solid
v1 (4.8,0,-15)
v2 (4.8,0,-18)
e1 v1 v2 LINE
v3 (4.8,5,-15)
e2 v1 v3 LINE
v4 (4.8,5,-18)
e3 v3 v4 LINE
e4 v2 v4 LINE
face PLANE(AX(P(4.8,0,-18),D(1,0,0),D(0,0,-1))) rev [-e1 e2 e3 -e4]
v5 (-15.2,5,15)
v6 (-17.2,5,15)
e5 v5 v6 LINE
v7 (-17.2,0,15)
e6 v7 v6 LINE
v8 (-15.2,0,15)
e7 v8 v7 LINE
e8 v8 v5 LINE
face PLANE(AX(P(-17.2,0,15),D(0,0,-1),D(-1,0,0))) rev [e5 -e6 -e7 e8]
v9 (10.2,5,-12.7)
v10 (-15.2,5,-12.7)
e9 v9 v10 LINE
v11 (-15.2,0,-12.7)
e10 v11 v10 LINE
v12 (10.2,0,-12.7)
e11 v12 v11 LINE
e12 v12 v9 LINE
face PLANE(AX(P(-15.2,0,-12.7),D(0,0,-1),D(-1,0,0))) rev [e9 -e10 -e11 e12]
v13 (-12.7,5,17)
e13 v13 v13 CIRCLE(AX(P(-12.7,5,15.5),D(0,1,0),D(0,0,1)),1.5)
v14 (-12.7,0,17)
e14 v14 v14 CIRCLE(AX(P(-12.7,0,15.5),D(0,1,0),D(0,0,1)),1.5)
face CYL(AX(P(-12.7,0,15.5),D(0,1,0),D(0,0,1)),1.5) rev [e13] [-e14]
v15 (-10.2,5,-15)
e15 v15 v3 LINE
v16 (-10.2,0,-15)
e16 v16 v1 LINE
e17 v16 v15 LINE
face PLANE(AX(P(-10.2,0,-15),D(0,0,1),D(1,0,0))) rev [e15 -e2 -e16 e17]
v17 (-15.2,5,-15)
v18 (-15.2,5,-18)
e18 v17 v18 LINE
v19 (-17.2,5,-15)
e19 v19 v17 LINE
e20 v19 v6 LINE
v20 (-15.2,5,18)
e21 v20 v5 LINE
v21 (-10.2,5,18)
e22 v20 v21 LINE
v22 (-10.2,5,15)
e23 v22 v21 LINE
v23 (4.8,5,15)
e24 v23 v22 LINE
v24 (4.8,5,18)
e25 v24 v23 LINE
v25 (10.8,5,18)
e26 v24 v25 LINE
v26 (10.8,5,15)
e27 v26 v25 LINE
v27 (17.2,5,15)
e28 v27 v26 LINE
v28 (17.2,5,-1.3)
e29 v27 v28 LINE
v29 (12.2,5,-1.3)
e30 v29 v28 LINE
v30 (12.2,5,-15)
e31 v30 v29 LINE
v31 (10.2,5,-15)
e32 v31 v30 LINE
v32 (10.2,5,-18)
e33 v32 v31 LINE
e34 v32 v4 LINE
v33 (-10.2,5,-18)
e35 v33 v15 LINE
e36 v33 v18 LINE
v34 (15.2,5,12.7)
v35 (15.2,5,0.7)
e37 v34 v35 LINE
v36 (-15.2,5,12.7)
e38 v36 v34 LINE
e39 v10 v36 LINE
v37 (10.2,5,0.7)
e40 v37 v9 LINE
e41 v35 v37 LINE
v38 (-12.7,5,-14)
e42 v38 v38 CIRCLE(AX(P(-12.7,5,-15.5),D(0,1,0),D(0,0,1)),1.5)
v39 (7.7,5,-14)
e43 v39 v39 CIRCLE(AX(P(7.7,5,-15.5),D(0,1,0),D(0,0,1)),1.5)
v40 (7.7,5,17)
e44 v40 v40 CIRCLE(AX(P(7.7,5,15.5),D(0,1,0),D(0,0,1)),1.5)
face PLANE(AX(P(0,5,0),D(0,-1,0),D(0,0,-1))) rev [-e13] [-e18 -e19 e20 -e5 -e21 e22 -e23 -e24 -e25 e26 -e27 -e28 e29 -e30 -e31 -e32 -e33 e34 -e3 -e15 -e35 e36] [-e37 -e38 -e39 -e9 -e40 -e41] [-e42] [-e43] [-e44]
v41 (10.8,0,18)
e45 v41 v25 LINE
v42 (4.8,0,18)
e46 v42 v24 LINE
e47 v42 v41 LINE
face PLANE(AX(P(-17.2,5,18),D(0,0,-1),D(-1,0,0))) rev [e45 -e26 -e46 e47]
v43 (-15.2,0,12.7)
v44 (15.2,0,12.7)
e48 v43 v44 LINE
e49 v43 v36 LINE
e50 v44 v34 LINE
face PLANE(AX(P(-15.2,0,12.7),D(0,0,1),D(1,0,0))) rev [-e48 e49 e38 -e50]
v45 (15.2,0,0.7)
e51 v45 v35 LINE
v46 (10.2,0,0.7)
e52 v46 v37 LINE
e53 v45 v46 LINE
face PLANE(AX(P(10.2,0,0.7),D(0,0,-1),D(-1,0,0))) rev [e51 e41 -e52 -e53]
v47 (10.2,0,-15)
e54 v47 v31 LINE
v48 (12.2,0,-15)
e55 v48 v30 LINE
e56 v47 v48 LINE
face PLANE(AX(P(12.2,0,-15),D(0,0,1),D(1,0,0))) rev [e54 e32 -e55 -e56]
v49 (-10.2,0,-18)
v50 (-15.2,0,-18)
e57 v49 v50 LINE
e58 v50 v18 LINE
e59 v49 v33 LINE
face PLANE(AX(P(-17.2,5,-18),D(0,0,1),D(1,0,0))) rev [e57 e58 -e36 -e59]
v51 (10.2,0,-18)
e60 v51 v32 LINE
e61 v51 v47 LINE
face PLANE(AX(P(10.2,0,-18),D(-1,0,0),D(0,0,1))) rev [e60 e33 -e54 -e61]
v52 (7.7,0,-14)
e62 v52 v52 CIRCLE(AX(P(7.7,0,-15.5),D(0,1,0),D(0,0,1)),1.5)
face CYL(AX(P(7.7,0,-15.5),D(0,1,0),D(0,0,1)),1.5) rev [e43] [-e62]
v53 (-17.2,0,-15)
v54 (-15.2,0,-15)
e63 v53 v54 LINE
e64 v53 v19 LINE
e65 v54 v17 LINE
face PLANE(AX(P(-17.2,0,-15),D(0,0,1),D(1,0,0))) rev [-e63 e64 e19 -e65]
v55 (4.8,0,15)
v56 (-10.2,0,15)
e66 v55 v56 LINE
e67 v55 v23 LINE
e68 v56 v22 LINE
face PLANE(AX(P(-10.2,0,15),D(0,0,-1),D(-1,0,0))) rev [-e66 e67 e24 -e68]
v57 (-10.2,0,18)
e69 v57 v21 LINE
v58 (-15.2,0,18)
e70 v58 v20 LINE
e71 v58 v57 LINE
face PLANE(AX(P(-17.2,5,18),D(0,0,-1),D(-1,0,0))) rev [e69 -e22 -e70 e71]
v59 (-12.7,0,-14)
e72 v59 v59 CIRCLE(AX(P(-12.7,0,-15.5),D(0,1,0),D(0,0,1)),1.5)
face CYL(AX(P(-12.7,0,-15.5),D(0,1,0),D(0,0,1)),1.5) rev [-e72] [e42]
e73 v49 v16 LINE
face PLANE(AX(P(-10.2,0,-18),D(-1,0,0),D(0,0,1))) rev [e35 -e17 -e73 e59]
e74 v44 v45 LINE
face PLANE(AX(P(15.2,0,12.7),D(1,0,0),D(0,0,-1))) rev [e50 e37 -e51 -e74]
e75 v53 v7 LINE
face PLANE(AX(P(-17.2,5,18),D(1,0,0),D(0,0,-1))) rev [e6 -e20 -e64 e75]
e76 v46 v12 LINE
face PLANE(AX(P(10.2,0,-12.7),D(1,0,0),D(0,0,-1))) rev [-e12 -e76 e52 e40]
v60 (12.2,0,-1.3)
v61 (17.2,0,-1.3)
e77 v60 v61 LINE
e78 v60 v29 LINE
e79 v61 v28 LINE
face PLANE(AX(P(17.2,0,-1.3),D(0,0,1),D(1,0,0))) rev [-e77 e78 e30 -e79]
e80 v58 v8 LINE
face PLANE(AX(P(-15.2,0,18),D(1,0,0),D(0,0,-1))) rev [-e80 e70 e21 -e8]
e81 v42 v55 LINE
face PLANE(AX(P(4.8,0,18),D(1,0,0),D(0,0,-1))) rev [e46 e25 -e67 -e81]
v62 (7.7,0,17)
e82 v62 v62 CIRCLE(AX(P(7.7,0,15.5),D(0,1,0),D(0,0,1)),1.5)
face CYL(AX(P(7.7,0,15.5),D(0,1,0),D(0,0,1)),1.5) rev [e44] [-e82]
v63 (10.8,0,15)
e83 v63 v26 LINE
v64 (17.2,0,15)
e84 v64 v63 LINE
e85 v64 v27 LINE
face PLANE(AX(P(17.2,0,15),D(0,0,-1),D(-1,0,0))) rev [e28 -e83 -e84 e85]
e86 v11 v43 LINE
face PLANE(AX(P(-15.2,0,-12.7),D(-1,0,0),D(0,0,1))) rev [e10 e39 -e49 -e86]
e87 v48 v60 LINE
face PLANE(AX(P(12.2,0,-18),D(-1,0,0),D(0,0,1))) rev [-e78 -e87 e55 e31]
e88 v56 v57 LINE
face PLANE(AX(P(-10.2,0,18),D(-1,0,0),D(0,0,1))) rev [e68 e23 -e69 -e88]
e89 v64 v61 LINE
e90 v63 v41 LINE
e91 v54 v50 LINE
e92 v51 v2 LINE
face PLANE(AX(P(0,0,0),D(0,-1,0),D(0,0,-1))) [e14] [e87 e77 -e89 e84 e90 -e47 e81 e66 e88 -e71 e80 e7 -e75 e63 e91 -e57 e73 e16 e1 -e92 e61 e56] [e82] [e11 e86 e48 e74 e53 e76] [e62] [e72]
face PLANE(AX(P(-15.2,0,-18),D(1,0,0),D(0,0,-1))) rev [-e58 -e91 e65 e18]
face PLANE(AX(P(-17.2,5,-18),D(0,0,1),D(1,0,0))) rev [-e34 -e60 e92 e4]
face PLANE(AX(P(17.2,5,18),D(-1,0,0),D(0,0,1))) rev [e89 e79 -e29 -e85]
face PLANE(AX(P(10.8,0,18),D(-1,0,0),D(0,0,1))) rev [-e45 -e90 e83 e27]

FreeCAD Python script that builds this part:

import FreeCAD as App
import Part
import Sketcher
from FreeCAD import Vector

doc = App.newDocument("Part")
params = doc.addObject("Spreadsheet::Sheet", "Params")
for row, (alias, value) in enumerate([
    ("sketch1_height", "36 mm"),
    ("sketch1_width", "34.4 mm"),
    ("pad1_length", "5 mm"),
    ("sketch2_diameter", "3 mm"),
    ("pocket1_length", "5 mm"),
    ("sketch3_diameter", "3 mm"),
    ("sketch3_width", "25.4 mm"),
    ("sketch4_width", "5 mm"),
    ("sketch4_height", "12 mm"),
    ("pocket3_length", "5 mm"),
    ("sketch5_width", "15 mm"),
    ("sketch5_height", "3 mm"),
    ("sketch6_height", "3 mm"),
    ("sketch6_width", "6.4 mm"),
    ("sketch7_width", "2 mm"),
    ("sketch7_height", "3 mm"),
    ("sketch8_width", "2 mm"),
    ("sketch8_width2", "15 mm"),
    ("sketch8_height", "3 mm"),
    ("sketch9_width", "5 mm"),
    ("sketch9_height", "16.7 mm"),
    ("sketch10_width", "2 mm"),
    ("sketch10_height", "3 mm"),
], start=1):
    params.set(f"A{row}", alias)
    params.set(f"B{row}", "=" + value)
    params.setAlias(f"B{row}", alias)

body = doc.addObject("PartDesign::Body", "Body")

sketch1 = body.newObject("Sketcher::SketchObject", "Sketch")
sketch1.AttachmentSupport = (doc.getObject("XZ_Plane"), [""])
sketch1.MapMode = "FlatFace"
sketch1.addGeometry([
    Part.LineSegment(Vector(-17.2, -18, 0), Vector(-17.2, 18, 0)),
    Part.LineSegment(Vector(-17.2, 18, 0), Vector(17.2, 18, 0)),
    Part.LineSegment(Vector(17.2, 18, 0), Vector(17.2, -18, 0)),
    Part.LineSegment(Vector(17.2, -18, 0), Vector(-17.2, -18, 0)),
], False)
sketch1.addConstraint([
    Sketcher.Constraint("Coincident", 0, 2, 1, 1),
    Sketcher.Constraint("Coincident", 1, 2, 2, 1),
    Sketcher.Constraint("Coincident", 2, 2, 3, 1),
    Sketcher.Constraint("Coincident", 3, 2, 0, 1),
    Sketcher.Constraint("Vertical", 0),
    Sketcher.Constraint("Horizontal", 1),
    Sketcher.Constraint("Vertical", 2),
    Sketcher.Constraint("Horizontal", 3),
    Sketcher.Constraint("Symmetric", 0, 2, 2, 2, -1, 1),
    Sketcher.Constraint("DistanceY", 0, 1, 0, 2, 36.0),
    Sketcher.Constraint("DistanceX", 1, 1, 1, 2, 34.4),
])
sketch1.setExpression("Constraints[9]", "Params.sketch1_height")
sketch1.setExpression("Constraints[10]", "Params.sketch1_width")
pad1 = body.newObject("PartDesign::Pad", "Pad")
pad1.Profile = sketch1
pad1.setExpression("Length", "Params.pad1_length")
pad1.Reversed = True

sketch2 = body.newObject("Sketcher::SketchObject", "Sketch001")
sketch2.AttachmentSupport = (doc.getObject("XZ_Plane"), [""])
sketch2.MapMode = "FlatFace"
sketch2.AttachmentOffset = App.Placement(Vector(0, 0, -5), App.Rotation())
sketch2.addGeometry(Part.Circle(Vector(-12.7, -15.5, 0), Vector(0, 0, 1), 1.5), False)
sketch2.addConstraint([
    Sketcher.Constraint("Diameter", 0, 3.0),
    Sketcher.Constraint("DistanceX", 0, 3, -1, 1, 12.7),
    Sketcher.Constraint("DistanceY", 0, 3, -1, 1, 15.5),
])
sketch2.setExpression("Constraints[0]", "Params.sketch2_diameter")
pocket1 = body.newObject("PartDesign::Pocket", "Pocket")
pocket1.Profile = sketch2
pocket1.setExpression("Length", "Params.pocket1_length")
pocket1.Reversed = True

sketch3 = body.newObject("Sketcher::SketchObject", "Sketch002")
sketch3.AttachmentSupport = (doc.getObject("XZ_Plane"), [""])
sketch3.MapMode = "FlatFace"
sketch3.AttachmentOffset = App.Placement(Vector(0, 0, -5), App.Rotation())
sketch3.addGeometry([
    Part.Circle(Vector(-12.7, -15.5, 0), Vector(0, 0, 1), 1.5),
    Part.Circle(Vector(7.7, -15.5, 0), Vector(0, 0, 1), 1.5),
    Part.Circle(Vector(7.7, 15.5, 0), Vector(0, 0, 1), 1.5),
    Part.Circle(Vector(-12.7, 15.5, 0), Vector(0, 0, 1), 1.5),
    Part.LineSegment(Vector(-15.2, -12.7, 0), Vector(-15.2, 12.7, 0)),
    Part.LineSegment(Vector(-15.2, 12.7, 0), Vector(10.2, 12.7, 0)),
    Part.LineSegment(Vector(10.2, 12.7, 0), Vector(10.2, -12.7, 0)),
    Part.LineSegment(Vector(10.2, -12.7, 0), Vector(-15.2, -12.7, 0)),
], False)
sketch3.addConstraint([
    Sketcher.Constraint("Coincident", 4, 2, 5, 1),
    Sketcher.Constraint("Coincident", 5, 2, 6, 1),
    Sketcher.Constraint("Coincident", 6, 2, 7, 1),
    Sketcher.Constraint("Coincident", 7, 2, 4, 1),
    Sketcher.Constraint("Vertical", 4),
    Sketcher.Constraint("Horizontal", 5),
    Sketcher.Constraint("Vertical", 6),
    Sketcher.Constraint("Horizontal", 7),
    Sketcher.Constraint("Equal", 0, 1),
    Sketcher.Constraint("Equal", 1, 2),
    Sketcher.Constraint("Equal", 2, 3),
    Sketcher.Constraint("Symmetric", 1, 3, 2, 3, -1),
    Sketcher.Constraint("Symmetric", 0, 3, 3, 3, -1),
    Sketcher.Constraint("Horizontal", 0, 3, 1, 3),
    Sketcher.Constraint("Equal", 7, 4),
    Sketcher.Constraint("Diameter", 0, 3.0),
    Sketcher.Constraint("DistanceX", 5, 1, 5, 2, 25.4),
    Sketcher.Constraint("DistanceY", 1, 3, 2, 3, 31.0),
    Sketcher.Constraint("DistanceX", 0, 3, -1, 1, 12.7),
    Sketcher.Constraint("DistanceX", -1, 1, 1, 3, 7.7),
    Sketcher.Constraint("DistanceX", 4, 2, -1, 1, 15.2),
    Sketcher.Constraint("DistanceY", -1, 1, 4, 2, 12.7),
])
sketch3.setExpression("Constraints[15]", "Params.sketch3_diameter")
sketch3.setExpression("Constraints[16]", "Params.sketch3_width")
pocket2 = body.newObject("PartDesign::Pocket", "Pocket001")
pocket2.Profile = sketch3
pocket2.Type = "ThroughAll"
pocket2.Reversed = True

sketch4 = body.newObject("Sketcher::SketchObject", "Sketch003")
sketch4.AttachmentSupport = (doc.getObject("XZ_Plane"), [""])
sketch4.MapMode = "FlatFace"
sketch4.AttachmentOffset = App.Placement(Vector(0, 0, -5), App.Rotation())
sketch4.addGeometry([
    Part.LineSegment(Vector(10.2, 0.7, 0), Vector(10.2, 12.7, 0)),
    Part.LineSegment(Vector(10.2, 12.7, 0), Vector(15.2, 12.7, 0)),
    Part.LineSegment(Vector(15.2, 12.7, 0), Vector(15.2, 0.7, 0)),
    Part.LineSegment(Vector(15.2, 0.7, 0), Vector(10.2, 0.7, 0)),
], False)
sketch4.addConstraint([
    Sketcher.Constraint("Coincident", 0, 2, 1, 1),
    Sketcher.Constraint("Coincident", 1, 2, 2, 1),
    Sketcher.Constraint("Coincident", 2, 2, 3, 1),
    Sketcher.Constraint("Coincident", 3, 2, 0, 1),
    Sketcher.Constraint("Vertical", 0),
    Sketcher.Constraint("Horizontal", 1),
    Sketcher.Constraint("Vertical", 2),
    Sketcher.Constraint("Horizontal", 3),
    Sketcher.Constraint("DistanceX", 1, 1, 1, 2, 5.0),
    Sketcher.Constraint("DistanceY", 0, 1, 0, 2, 12.0),
    Sketcher.Constraint("DistanceX", -1, 1, 0, 2, 10.2),
    Sketcher.Constraint("DistanceY", -1, 1, 0, 2, 12.7),
])
sketch4.setExpression("Constraints[8]", "Params.sketch4_width")
sketch4.setExpression("Constraints[9]", "Params.sketch4_height")
pocket3 = body.newObject("PartDesign::Pocket", "Pocket002")
pocket3.Profile = sketch4
pocket3.setExpression("Length", "Params.pocket3_length")
pocket3.Reversed = True

sketch5 = body.newObject("Sketcher::SketchObject", "Sketch004")
sketch5.AttachmentSupport = (doc.getObject("XZ_Plane"), [""])
sketch5.MapMode = "FlatFace"
sketch5.AttachmentOffset = App.Placement(Vector(0, 0, -5), App.Rotation())
sketch5.addGeometry([
    Part.LineSegment(Vector(-10.2, 15, 0), Vector(-10.2, 18, 0)),
    Part.LineSegment(Vector(-10.2, 18, 0), Vector(4.8, 18, 0)),
    Part.LineSegment(Vector(4.8, 18, 0), Vector(4.8, 15, 0)),
    Part.LineSegment(Vector(4.8, 15, 0), Vector(-10.2, 15, 0)),
], False)
sketch5.addConstraint([
    Sketcher.Constraint("Coincident", 0, 2, 1, 1),
    Sketcher.Constraint("Coincident", 1, 2, 2, 1),
    Sketcher.Constraint("Coincident", 2, 2, 3, 1),
    Sketcher.Constraint("Coincident", 3, 2, 0, 1),
    Sketcher.Constraint("Vertical", 0),
    Sketcher.Constraint("Horizontal", 1),
    Sketcher.Constraint("Vertical", 2),
    Sketcher.Constraint("Horizontal", 3),
    Sketcher.Constraint("DistanceX", 1, 1, 1, 2, 15.0),
    Sketcher.Constraint("DistanceY", 0, 1, 0, 2, 3.0),
    Sketcher.Constraint("DistanceY", -1, 1, 0, 2, 18.0),
    Sketcher.Constraint("DistanceX", 0, 2, -1, 1, 10.2),
])
sketch5.setExpression("Constraints[8]", "Params.sketch5_width")
sketch5.setExpression("Constraints[9]", "Params.sketch5_height")
pocket4 = body.newObject("PartDesign::Pocket", "Pocket003")
pocket4.Profile = sketch5
pocket4.Type = "ThroughAll"
pocket4.Reversed = True

sketch6 = body.newObject("Sketcher::SketchObject", "Sketch005")
sketch6.AttachmentSupport = (doc.getObject("XZ_Plane"), [""])
sketch6.MapMode = "FlatFace"
sketch6.AttachmentOffset = App.Placement(Vector(0, 0, -5), App.Rotation())
sketch6.addGeometry([
    Part.LineSegment(Vector(10.8, 15, 0), Vector(10.8, 18, 0)),
    Part.LineSegment(Vector(10.8, 18, 0), Vector(17.2, 18, 0)),
    Part.LineSegment(Vector(17.2, 18, 0), Vector(17.2, 15, 0)),
    Part.LineSegment(Vector(17.2, 15, 0), Vector(10.8, 15, 0)),
], False)
sketch6.addConstraint([
    Sketcher.Constraint("Coincident", 0, 2, 1, 1),
    Sketcher.Constraint("Coincident", 1, 2, 2, 1),
    Sketcher.Constraint("Coincident", 2, 2, 3, 1),
    Sketcher.Constraint("Coincident", 3, 2, 0, 1),
    Sketcher.Constraint("Vertical", 0),
    Sketcher.Constraint("Horizontal", 1),
    Sketcher.Constraint("Vertical", 2),
    Sketcher.Constraint("Horizontal", 3),
    Sketcher.Constraint("DistanceY", 0, 1, 0, 2, 3.0),
    Sketcher.Constraint("DistanceX", 1, 1, 1, 2, 6.4),
    Sketcher.Constraint("DistanceY", -1, 1, 0, 2, 18.0),
    Sketcher.Constraint("DistanceX", -1, 1, 0, 2, 10.8),
])
sketch6.setExpression("Constraints[8]", "Params.sketch6_height")
sketch6.setExpression("Constraints[9]", "Params.sketch6_width")
pocket5 = body.newObject("PartDesign::Pocket", "Pocket004")
pocket5.Profile = sketch6
pocket5.Type = "ThroughAll"
pocket5.Reversed = True

sketch7 = body.newObject("Sketcher::SketchObject", "Sketch006")
sketch7.AttachmentSupport = (doc.getObject("XZ_Plane"), [""])
sketch7.MapMode = "FlatFace"
sketch7.AttachmentOffset = App.Placement(Vector(0, 0, -5), App.Rotation())
sketch7.addGeometry([
    Part.LineSegment(Vector(-17.2, 15, 0), Vector(-17.2, 18, 0)),
    Part.LineSegment(Vector(-17.2, 18, 0), Vector(-15.2, 18, 0)),
    Part.LineSegment(Vector(-15.2, 18, 0), Vector(-15.2, 15, 0)),
    Part.LineSegment(Vector(-15.2, 15, 0), Vector(-17.2, 15, 0)),
], False)
sketch7.addConstraint([
    Sketcher.Constraint("Coincident", 0, 2, 1, 1),
    Sketcher.Constraint("Coincident", 1, 2, 2, 1),
    Sketcher.Constraint("Coincident", 2, 2, 3, 1),
    Sketcher.Constraint("Coincident", 3, 2, 0, 1),
    Sketcher.Constraint("Vertical", 0),
    Sketcher.Constraint("Horizontal", 1),
    Sketcher.Constraint("Vertical", 2),
    Sketcher.Constraint("Horizontal", 3),
    Sketcher.Constraint("DistanceX", 1, 1, 1, 2, 2.0),
    Sketcher.Constraint("DistanceY", 0, 1, 0, 2, 3.0),
    Sketcher.Constraint("DistanceY", -1, 1, 0, 2, 18.0),
    Sketcher.Constraint("DistanceX", 0, 2, -1, 1, 17.2),
])
sketch7.setExpression("Constraints[8]", "Params.sketch7_width")
sketch7.setExpression("Constraints[9]", "Params.sketch7_height")
pocket6 = body.newObject("PartDesign::Pocket", "Pocket005")
pocket6.Profile = sketch7
pocket6.Type = "ThroughAll"
pocket6.Reversed = True

sketch8 = body.newObject("Sketcher::SketchObject", "Sketch007")
sketch8.AttachmentSupport = (doc.getObject("XZ_Plane"), [""])
sketch8.MapMode = "FlatFace"
sketch8.AttachmentOffset = App.Placement(Vector(0, 0, -5), App.Rotation())
sketch8.addGeometry([
    Part.LineSegment(Vector(-17.2, -18, 0), Vector(-17.2, -15, 0)),
    Part.LineSegment(Vector(-17.2, -15, 0), Vector(-15.2, -15, 0)),
    Part.LineSegment(Vector(-15.2, -15, 0), Vector(-15.2, -18, 0)),
    Part.LineSegment(Vector(-15.2, -18, 0), Vector(-17.2, -18, 0)),
    Part.LineSegment(Vector(-10.2, -18, 0), Vector(-10.2, -15, 0)),
    Part.LineSegment(Vector(-10.2, -15, 0), Vector(4.8, -15, 0)),
    Part.LineSegment(Vector(4.8, -15, 0), Vector(4.8, -18, 0)),
    Part.LineSegment(Vector(4.8, -18, 0), Vector(-10.2, -18, 0)),
], False)
sketch8.addConstraint([
    Sketcher.Constraint("Coincident", 0, 2, 1, 1),
    Sketcher.Constraint("Coincident", 1, 2, 2, 1),
    Sketcher.Constraint("Coincident", 2, 2, 3, 1),
    Sketcher.Constraint("Coincident", 3, 2, 0, 1),
    Sketcher.Constraint("Coincident", 4, 2, 5, 1),
    Sketcher.Constraint("Coincident", 5, 2, 6, 1),
    Sketcher.Constraint("Coincident", 6, 2, 7, 1),
    Sketcher.Constraint("Coincident", 7, 2, 4, 1),
    Sketcher.Constraint("Vertical", 0),
    Sketcher.Constraint("Horizontal", 1),
    Sketcher.Constraint("Vertical", 2),
    Sketcher.Constraint("Horizontal", 3),
    Sketcher.Constraint("Vertical", 4),
    Sketcher.Constraint("Horizontal", 5),
    Sketcher.Constraint("Vertical", 6),
    Sketcher.Constraint("Horizontal", 7),
    Sketcher.Constraint("Horizontal", 1, 2, 4, 2),
    Sketcher.Constraint("Horizontal", 3, 2, 6, 2),
    Sketcher.Constraint("DistanceX", 1, 1, 1, 2, 2.0),
    Sketcher.Constraint("DistanceX", 5, 1, 5, 2, 15.0),
    Sketcher.Constraint("DistanceY", 0, 1, 0, 2, 3.0),
    Sketcher.Constraint("DistanceY", 0, 2, -1, 1, 15.0),
    Sketcher.Constraint("DistanceX", 1, 2, 4, 2, 5.0),
    Sketcher.Constraint("DistanceX", 0, 2, -1, 1, 17.2),
])
sketch8.setExpression("Constraints[18]", "Params.sketch8_width")
sketch8.setExpression("Constraints[19]", "Params.sketch8_width2")
sketch8.setExpression("Constraints[20]", "Params.sketch8_height")
pocket7 = body.newObject("PartDesign::Pocket", "Pocket006")
pocket7.Profile = sketch8
pocket7.Type = "ThroughAll"
pocket7.Reversed = True

sketch9 = body.newObject("Sketcher::SketchObject", "Sketch008")
sketch9.AttachmentSupport = (doc.getObject("XZ_Plane"), [""])
sketch9.MapMode = "FlatFace"
sketch9.AttachmentOffset = App.Placement(Vector(0, 0, -5), App.Rotation())
sketch9.addGeometry([
    Part.LineSegment(Vector(12.2, -18, 0), Vector(12.2, -1.3, 0)),
    Part.LineSegment(Vector(12.2, -1.3, 0), Vector(17.2, -1.3, 0)),
    Part.LineSegment(Vector(17.2, -1.3, 0), Vector(17.2, -18, 0)),
    Part.LineSegment(Vector(17.2, -18, 0), Vector(12.2, -18, 0)),
], False)
sketch9.addConstraint([
    Sketcher.Constraint("Coincident", 0, 2, 1, 1),
    Sketcher.Constraint("Coincident", 1, 2, 2, 1),
    Sketcher.Constraint("Coincident", 2, 2, 3, 1),
    Sketcher.Constraint("Coincident", 3, 2, 0, 1),
    Sketcher.Constraint("Vertical", 0),
    Sketcher.Constraint("Horizontal", 1),
    Sketcher.Constraint("Vertical", 2),
    Sketcher.Constraint("Horizontal", 3),
    Sketcher.Constraint("DistanceX", 1, 1, 1, 2, 5.0),
    Sketcher.Constraint("DistanceY", 0, 1, 0, 2, 16.7),
    Sketcher.Constraint("DistanceY", 2, 2, -1, 1, 18.0),
    Sketcher.Constraint("DistanceX", -1, 1, 0, 2, 12.2),
])
sketch9.setExpression("Constraints[8]", "Params.sketch9_width")
sketch9.setExpression("Constraints[9]", "Params.sketch9_height")
pocket8 = body.newObject("PartDesign::Pocket", "Pocket007")
pocket8.Profile = sketch9
pocket8.Type = "ThroughAll"
pocket8.Reversed = True

sketch10 = body.newObject("Sketcher::SketchObject", "Sketch009")
sketch10.AttachmentSupport = (doc.getObject("XZ_Plane"), [""])
sketch10.MapMode = "FlatFace"
sketch10.AttachmentOffset = App.Placement(Vector(0, 0, -5), App.Rotation())
sketch10.addGeometry([
    Part.LineSegment(Vector(10.2, -18, 0), Vector(10.2, -15, 0)),
    Part.LineSegment(Vector(10.2, -15, 0), Vector(12.2, -15, 0)),
    Part.LineSegment(Vector(12.2, -15, 0), Vector(12.2, -18, 0)),
    Part.LineSegment(Vector(12.2, -18, 0), Vector(10.2, -18, 0)),
], False)
sketch10.addConstraint([
    Sketcher.Constraint("Coincident", 0, 2, 1, 1),
    Sketcher.Constraint("Coincident", 1, 2, 2, 1),
    Sketcher.Constraint("Coincident", 2, 2, 3, 1),
    Sketcher.Constraint("Coincident", 3, 2, 0, 1),
    Sketcher.Constraint("Vertical", 0),
    Sketcher.Constraint("Horizontal", 1),
    Sketcher.Constraint("Vertical", 2),
    Sketcher.Constraint("Horizontal", 3),
    Sketcher.Constraint("DistanceX", 1, 1, 1, 2, 2.0),
    Sketcher.Constraint("DistanceY", 0, 1, 0, 2, 3.0),
    Sketcher.Constraint("DistanceY", 0, 2, -1, 1, 15.0),
    Sketcher.Constraint("DistanceX", -1, 1, 0, 2, 10.2),
])
sketch10.setExpression("Constraints[8]", "Params.sketch10_width")
sketch10.setExpression("Constraints[9]", "Params.sketch10_height")
pocket9 = body.newObject("PartDesign::Pocket", "Pocket008")
pocket9.Profile = sketch10
pocket9.Type = "ThroughAll"
pocket9.Reversed = True

doc.recompute()
